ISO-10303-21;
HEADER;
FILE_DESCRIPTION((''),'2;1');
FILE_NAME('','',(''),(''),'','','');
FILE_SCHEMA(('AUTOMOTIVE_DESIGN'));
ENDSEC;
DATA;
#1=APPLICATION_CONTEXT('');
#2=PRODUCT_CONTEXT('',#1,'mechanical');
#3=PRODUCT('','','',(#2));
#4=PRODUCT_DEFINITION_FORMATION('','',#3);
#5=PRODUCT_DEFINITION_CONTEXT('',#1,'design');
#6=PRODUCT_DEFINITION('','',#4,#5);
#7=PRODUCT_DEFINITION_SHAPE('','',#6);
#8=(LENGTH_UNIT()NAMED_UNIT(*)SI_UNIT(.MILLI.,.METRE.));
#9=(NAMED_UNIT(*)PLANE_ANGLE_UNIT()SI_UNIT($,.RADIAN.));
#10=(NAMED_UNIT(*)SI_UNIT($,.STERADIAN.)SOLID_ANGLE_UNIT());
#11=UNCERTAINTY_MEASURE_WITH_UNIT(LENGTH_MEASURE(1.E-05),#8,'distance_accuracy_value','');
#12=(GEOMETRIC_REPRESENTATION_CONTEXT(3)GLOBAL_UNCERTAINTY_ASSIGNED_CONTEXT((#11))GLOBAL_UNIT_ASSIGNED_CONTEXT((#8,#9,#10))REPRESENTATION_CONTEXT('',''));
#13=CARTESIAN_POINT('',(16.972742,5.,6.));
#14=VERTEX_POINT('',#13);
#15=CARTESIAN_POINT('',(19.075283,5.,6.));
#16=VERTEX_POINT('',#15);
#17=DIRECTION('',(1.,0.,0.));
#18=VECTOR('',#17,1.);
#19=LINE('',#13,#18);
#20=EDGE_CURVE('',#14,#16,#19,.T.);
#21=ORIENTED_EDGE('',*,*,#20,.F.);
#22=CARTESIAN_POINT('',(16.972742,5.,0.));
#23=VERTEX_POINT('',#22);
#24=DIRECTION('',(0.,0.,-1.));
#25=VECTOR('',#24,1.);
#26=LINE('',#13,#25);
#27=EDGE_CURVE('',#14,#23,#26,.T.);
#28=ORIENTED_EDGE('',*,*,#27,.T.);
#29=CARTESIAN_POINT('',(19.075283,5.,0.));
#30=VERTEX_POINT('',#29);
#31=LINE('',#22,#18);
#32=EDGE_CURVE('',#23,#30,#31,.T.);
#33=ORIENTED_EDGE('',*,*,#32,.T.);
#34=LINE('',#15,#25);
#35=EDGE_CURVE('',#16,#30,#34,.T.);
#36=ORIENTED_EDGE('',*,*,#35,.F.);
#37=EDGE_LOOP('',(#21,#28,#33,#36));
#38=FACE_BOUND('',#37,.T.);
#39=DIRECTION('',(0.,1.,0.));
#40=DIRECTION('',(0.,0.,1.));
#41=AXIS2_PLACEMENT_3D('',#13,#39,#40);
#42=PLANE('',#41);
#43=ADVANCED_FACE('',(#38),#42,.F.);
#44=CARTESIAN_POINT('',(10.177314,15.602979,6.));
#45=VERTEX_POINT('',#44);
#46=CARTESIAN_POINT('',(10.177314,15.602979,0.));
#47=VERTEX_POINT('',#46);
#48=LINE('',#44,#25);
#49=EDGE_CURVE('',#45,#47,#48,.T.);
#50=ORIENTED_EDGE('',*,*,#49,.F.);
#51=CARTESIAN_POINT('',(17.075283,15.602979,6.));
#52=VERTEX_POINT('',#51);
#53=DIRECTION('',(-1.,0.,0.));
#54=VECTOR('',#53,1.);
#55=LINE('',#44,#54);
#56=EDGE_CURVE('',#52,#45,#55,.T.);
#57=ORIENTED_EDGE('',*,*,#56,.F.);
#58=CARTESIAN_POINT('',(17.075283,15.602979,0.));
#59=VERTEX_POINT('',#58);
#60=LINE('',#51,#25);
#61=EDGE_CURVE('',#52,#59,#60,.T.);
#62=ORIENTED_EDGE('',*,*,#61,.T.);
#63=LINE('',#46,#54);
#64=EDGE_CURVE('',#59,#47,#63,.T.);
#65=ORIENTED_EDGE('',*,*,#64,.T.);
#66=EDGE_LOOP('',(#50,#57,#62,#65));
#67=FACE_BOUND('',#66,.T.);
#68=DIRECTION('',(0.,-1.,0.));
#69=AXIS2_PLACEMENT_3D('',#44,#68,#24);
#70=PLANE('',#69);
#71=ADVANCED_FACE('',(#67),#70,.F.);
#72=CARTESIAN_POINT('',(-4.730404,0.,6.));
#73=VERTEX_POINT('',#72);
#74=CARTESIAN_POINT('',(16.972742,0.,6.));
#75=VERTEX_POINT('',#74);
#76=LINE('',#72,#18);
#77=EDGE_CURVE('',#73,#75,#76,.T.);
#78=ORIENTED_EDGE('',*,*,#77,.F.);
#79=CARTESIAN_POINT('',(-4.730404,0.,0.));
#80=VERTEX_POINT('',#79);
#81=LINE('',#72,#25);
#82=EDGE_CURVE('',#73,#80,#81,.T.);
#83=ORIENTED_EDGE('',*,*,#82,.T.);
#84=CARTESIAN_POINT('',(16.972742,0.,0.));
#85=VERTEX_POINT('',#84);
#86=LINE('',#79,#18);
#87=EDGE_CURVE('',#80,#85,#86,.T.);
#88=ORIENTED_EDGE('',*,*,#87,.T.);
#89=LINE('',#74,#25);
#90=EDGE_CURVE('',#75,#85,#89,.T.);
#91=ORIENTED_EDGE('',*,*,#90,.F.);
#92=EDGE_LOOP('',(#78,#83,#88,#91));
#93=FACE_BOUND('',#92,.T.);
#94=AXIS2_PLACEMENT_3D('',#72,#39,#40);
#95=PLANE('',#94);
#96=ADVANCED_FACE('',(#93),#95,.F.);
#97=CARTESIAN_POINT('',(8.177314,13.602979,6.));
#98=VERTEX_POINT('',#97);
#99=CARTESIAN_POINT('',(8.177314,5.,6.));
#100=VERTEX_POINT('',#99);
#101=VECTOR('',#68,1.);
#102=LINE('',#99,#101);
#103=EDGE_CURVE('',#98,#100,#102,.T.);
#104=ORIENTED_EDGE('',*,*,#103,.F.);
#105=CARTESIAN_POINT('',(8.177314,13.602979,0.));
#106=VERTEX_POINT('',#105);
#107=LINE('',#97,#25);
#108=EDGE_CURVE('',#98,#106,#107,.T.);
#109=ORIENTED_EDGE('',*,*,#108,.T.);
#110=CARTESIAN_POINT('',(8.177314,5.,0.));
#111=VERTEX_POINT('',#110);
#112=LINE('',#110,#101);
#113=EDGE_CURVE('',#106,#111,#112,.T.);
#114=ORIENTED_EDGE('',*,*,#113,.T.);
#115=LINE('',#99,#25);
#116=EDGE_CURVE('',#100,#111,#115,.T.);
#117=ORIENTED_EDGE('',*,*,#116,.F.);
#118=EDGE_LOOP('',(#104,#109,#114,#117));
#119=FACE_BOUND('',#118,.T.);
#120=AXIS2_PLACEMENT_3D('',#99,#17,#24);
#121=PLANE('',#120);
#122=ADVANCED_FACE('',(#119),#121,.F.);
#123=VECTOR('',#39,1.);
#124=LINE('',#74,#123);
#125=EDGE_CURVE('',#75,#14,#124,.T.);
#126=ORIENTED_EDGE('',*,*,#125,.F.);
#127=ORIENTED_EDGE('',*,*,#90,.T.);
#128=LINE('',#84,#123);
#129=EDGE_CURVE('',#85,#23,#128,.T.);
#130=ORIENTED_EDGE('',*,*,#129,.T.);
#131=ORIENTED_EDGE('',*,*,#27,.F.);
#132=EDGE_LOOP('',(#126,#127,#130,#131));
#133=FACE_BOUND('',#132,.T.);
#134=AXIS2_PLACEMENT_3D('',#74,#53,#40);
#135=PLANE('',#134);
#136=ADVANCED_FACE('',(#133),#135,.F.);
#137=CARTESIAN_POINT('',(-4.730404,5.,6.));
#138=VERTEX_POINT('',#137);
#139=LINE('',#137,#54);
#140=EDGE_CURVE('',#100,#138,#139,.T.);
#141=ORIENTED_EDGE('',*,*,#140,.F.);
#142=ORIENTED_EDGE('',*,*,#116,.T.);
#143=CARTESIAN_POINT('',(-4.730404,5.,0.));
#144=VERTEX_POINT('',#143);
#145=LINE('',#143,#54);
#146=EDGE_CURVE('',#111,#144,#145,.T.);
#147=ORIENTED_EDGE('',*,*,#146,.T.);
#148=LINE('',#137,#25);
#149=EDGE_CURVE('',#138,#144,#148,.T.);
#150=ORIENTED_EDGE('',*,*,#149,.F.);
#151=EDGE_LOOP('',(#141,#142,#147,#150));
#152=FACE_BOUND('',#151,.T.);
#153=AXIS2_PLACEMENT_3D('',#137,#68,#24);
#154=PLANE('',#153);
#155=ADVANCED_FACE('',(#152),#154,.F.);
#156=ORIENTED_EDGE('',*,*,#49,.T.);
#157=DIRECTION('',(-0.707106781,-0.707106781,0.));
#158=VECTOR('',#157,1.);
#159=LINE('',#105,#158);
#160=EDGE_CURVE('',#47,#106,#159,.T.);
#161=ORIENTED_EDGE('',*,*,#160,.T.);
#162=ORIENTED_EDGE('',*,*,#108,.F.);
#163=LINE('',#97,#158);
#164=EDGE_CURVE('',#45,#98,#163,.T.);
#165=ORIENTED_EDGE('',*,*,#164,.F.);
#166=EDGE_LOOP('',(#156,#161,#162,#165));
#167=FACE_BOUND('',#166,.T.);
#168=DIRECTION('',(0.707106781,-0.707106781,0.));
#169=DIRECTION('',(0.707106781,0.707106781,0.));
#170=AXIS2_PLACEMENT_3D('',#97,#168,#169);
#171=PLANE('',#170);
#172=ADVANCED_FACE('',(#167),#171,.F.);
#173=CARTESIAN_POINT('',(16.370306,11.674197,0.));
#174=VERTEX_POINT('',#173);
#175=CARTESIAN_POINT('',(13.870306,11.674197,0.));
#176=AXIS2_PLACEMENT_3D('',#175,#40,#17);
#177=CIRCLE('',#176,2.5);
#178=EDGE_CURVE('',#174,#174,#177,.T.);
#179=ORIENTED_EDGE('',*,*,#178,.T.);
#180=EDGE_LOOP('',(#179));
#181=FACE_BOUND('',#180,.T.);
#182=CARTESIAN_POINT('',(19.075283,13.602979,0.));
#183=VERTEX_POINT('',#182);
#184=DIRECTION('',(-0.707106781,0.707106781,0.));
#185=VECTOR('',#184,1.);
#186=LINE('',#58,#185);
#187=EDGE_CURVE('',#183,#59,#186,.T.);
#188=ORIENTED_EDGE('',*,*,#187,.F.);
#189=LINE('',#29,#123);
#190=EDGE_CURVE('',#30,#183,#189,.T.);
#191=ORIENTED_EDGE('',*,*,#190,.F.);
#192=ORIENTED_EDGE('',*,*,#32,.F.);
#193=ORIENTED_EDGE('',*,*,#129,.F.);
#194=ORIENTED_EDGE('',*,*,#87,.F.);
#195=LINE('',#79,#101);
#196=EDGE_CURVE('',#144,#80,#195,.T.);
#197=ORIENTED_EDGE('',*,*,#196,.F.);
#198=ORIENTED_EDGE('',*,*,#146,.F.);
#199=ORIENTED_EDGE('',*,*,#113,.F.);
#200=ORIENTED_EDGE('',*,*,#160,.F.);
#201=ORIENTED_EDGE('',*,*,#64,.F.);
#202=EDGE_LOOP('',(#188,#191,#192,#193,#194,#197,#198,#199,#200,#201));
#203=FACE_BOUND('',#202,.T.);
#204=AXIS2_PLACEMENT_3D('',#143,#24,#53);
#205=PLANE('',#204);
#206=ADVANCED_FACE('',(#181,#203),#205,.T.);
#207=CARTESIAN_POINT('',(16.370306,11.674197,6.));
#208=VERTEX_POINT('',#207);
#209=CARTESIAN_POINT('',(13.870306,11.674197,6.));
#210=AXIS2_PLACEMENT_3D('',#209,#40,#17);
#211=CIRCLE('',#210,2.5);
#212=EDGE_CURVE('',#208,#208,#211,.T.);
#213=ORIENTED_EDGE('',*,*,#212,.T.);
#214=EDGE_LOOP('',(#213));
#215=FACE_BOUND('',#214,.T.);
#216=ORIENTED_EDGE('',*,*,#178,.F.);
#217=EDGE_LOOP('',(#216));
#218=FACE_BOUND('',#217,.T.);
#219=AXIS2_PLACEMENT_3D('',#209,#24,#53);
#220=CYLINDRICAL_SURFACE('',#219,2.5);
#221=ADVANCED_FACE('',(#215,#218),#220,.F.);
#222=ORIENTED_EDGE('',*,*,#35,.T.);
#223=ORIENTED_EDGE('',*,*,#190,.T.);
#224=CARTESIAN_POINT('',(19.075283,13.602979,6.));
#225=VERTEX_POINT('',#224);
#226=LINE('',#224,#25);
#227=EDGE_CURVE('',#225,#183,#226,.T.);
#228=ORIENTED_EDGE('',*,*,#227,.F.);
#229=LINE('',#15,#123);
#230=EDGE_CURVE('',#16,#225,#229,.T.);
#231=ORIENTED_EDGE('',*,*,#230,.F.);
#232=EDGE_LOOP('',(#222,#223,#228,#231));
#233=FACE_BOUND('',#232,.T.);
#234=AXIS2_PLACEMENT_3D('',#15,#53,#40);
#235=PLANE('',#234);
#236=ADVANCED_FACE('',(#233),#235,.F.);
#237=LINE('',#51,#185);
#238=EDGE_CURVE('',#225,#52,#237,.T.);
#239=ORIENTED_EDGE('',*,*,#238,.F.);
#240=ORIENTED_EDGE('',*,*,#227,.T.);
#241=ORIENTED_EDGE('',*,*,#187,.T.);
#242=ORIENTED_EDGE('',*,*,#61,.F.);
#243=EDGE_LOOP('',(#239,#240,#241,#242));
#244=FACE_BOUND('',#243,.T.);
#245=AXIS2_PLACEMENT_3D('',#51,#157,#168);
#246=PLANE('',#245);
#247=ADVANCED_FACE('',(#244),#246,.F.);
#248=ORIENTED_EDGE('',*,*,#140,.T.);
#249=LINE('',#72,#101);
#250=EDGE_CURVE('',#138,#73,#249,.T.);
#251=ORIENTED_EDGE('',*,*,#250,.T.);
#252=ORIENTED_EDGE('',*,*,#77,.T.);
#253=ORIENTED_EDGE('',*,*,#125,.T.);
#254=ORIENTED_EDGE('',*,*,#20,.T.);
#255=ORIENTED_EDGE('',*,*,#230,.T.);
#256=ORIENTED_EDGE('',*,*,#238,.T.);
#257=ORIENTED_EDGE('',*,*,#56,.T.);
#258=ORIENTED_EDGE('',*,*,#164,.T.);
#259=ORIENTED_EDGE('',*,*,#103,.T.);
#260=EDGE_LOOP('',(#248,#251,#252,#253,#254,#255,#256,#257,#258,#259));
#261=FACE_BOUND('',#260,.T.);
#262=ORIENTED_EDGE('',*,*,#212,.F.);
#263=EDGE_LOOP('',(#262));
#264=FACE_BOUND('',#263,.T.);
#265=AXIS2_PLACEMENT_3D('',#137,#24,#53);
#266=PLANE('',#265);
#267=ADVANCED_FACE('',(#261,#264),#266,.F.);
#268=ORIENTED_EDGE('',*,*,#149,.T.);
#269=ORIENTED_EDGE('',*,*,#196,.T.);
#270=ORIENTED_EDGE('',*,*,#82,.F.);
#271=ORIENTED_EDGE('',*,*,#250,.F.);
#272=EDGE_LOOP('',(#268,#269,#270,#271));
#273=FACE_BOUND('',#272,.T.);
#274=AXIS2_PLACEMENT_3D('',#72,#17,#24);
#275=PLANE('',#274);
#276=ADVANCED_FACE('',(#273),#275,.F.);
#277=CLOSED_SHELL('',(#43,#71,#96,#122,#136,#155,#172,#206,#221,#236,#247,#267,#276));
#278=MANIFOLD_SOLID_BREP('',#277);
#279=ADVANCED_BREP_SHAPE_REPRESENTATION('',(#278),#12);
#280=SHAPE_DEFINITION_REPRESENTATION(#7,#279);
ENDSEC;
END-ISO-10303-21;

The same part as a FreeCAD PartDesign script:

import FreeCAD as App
import Part
import Sketcher


def add_polygon(sketch, points):
    """Adds a closed chain of lines whose ends are joined by coincident constraints."""
    first, n = sketch.GeometryCount, len(points)
    for a, b in zip(points, points[1:] + points[:1]):
        sketch.addGeometry(Part.LineSegment(App.Vector(*a, 0), App.Vector(*b, 0)), False)
    for i in range(n):
        sketch.addConstraint(Sketcher.Constraint("Coincident", first + i, 2, first + (i + 1) % n, 1))

doc = App.newDocument("Part")
body = doc.addObject("PartDesign::Body", "Body")

sketch1 = body.newObject("Sketcher::SketchObject", "Sketch")
sketch1.AttachmentSupport = (doc.getObject("XY_Plane"), [""])
sketch1.MapMode = "FlatFace"
add_polygon(sketch1, [(8.2, 5), (-4.7, 5), (-4.7, 0), (17, 0), (17, 5), (19.1, 5), (19.1, 13.6), (17.1, 15.6), (10.2, 15.6), (8.2, 13.6)])
sketch1.addGeometry(Part.Circle(App.Vector(13.9, 11.7, 0), App.Vector(0, 0, 1), 2.5), False)
sketch1.addConstraint(Sketcher.Constraint("Horizontal", 0))
sketch1.addConstraint(Sketcher.Constraint("Vertical", 1))
sketch1.addConstraint(Sketcher.Constraint("Horizontal", 2))
sketch1.addConstraint(Sketcher.Constraint("Vertical", 3))
sketch1.addConstraint(Sketcher.Constraint("Horizontal", 4))
sketch1.addConstraint(Sketcher.Constraint("Vertical", 5))
sketch1.addConstraint(Sketcher.Constraint("Horizontal", 7))
sketch1.addConstraint(Sketcher.Constraint("Vertical", 9))
sketch1.addConstraint(Sketcher.Constraint("PointOnObject", 1, 2, -1))
sketch1.addConstraint(Sketcher.Constraint("Perpendicular", 6, 8))
sketch1.addConstraint(Sketcher.Constraint("Horizontal", 0, 2, 3, 2))
sketch1.addConstraint(Sketcher.Constraint("Horizontal", 5, 2, 8, 2))
sketch1.addConstraint(Sketcher.Constraint("Equal", 6, 8))
sketch1.addConstraint(Sketcher.Constraint("Diameter", 10, 5.0))
sketch1.addConstraint(Sketcher.Constraint("DistanceY", 1, 2, 1, 1, 5.0))
sketch1.addConstraint(Sketcher.Constraint("DistanceX", 6, 2, 5, 2, 2.0))
sketch1.addConstraint(Sketcher.Constraint("DistanceX", 0, 2, 0, 1, 12.907718))
sketch1.addConstraint(Sketcher.Constraint("DistanceX", 4, 1, 4, 2, 2.102541))
sketch1.addConstraint(Sketcher.Constraint("DistanceX", 7, 2, 7, 1, 6.897969))
sketch1.addConstraint(Sketcher.Constraint("DistanceY", 5, 1, 5, 2, 8.602979))
sketch1.addConstraint(Sketcher.Constraint("DistanceX", -1, 1, 2, 2, 16.972742))
sketch1.addConstraint(Sketcher.Constraint("DistanceX", 0, 2, 10, 3, 18.600711))
sketch1.addConstraint(Sketcher.Constraint("DistanceY", -1, 1, 10, 3, 11.674197))
pad1 = body.newObject("PartDesign::Pad", "Pad")
pad1.Profile = sketch1
pad1.Length = 6

doc.recompute()
